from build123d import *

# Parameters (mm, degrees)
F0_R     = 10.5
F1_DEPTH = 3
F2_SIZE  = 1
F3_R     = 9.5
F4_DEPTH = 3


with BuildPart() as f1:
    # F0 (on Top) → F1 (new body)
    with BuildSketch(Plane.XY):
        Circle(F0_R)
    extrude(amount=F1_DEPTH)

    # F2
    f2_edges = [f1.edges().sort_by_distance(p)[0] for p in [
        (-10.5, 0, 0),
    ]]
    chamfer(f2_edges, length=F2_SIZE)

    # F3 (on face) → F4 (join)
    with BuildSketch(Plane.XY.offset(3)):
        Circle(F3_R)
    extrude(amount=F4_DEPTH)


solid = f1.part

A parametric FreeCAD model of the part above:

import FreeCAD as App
import Part
import Sketcher

V = App.Vector
Q = App.Units.Quantity


def edges_at(feature, points):
    """Names of the edges that pass closest to the given points."""
    edges = feature.Shape.Edges
    near = lambda p: min(range(len(edges)), key=lambda i: edges[i].distToShape(Part.Vertex(*p))[0])
    return sorted({f"Edge{near(p) + 1}" for p in points})

doc = App.newDocument("Part")
body = doc.addObject("PartDesign::Body", "Body")

# Sketch on XY plane
sketch1 = body.newObject("Sketcher::SketchObject", "Sketch")
sketch1.AttachmentSupport = (doc.getObject("XY_Plane"), [""])
sketch1.MapMode = "FlatFace"
sketch1.addGeometry(Part.Circle(V(0, 0, 0), V(0, 0, 1), 10.5), False)
sketch1.addConstraint([
    Sketcher.Constraint("Coincident", 0, 3, -1, 1),
    Sketcher.Constraint("Diameter", 0, Q("21 mm")),
])
pad1 = body.newObject("PartDesign::Pad", "Pad")
pad1.Profile = sketch1
pad1.Length = 3
doc.recompute()

chamfer = body.newObject("PartDesign::Chamfer", "Chamfer")
chamfer.Base = (pad1, edges_at(pad1, [(-10.5, 0, 0)]))
chamfer.Size = 1

# Sketch on XY plane
sketch2 = body.newObject("Sketcher::SketchObject", "Sketch001")
sketch2.AttachmentSupport = (doc.getObject("XY_Plane"), [""])
sketch2.MapMode = "FlatFace"
sketch2.AttachmentOffset = App.Placement(V(0, 0, 3), App.Rotation())
sketch2.addGeometry(Part.Circle(V(0, 0, 0), V(0, 0, 1), 9.5), False)
sketch2.addConstraint([
    Sketcher.Constraint("Coincident", 0, 3, -1, 1),
    Sketcher.Constraint("Diameter", 0, Q("19 mm")),
])
pad2 = body.newObject("PartDesign::Pad", "Pad001")
pad2.Profile = sketch2
pad2.Length = 3

doc.recompute()
